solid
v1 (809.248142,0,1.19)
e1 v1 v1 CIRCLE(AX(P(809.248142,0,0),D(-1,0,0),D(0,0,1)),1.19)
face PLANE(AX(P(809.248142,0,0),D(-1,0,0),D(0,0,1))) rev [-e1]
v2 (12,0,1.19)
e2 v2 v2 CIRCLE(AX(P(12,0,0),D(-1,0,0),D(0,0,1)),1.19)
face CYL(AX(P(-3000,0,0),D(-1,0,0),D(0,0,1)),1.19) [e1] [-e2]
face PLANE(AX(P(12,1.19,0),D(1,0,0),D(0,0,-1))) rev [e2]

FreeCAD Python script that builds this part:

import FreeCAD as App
import Part
import Sketcher

V = App.Vector

doc = App.newDocument("Part")
params = doc.addObject("Spreadsheet::Sheet", "Params")
for row, (alias, value) in enumerate([
    ("sketch1_height", "1.19 mm"),
    ("revolution_angle", "360 deg"),
], start=1):
    params.set(f"A{row}", alias)
    params.set(f"B{row}", "=" + value)
    params.setAlias(f"B{row}", alias)

body = doc.addObject("PartDesign::Body", "Body")

# Sketch on XY plane
sketch1 = body.newObject("Sketcher::SketchObject", "Sketch")
sketch1.AttachmentSupport = (doc.getObject("XY_Plane"), [""])
sketch1.MapMode = "FlatFace"
sketch1.addGeometry([
    Part.LineSegment(V(12, 1.2, 0), V(12, 0, 0)),
    Part.LineSegment(V(12, 0, 0), V(809.2, 0, 0)),
    Part.LineSegment(V(809.2, 0, 0), V(809.2, 1.2, 0)),
    Part.LineSegment(V(809.2, 1.2, 0), V(12, 1.2, 0)),
], False)
sketch1.addConstraint([
    Sketcher.Constraint("Coincident", 0, 2, 1, 1),
    Sketcher.Constraint("Coincident", 1, 2, 2, 1),
    Sketcher.Constraint("Coincident", 2, 2, 3, 1),
    Sketcher.Constraint("Coincident", 3, 2, 0, 1),
    Sketcher.Constraint("Vertical", 0),
    Sketcher.Constraint("Horizontal", 1),
    Sketcher.Constraint("Vertical", 2),
    Sketcher.Constraint("Horizontal", 3),
    Sketcher.Constraint("PointOnObject", 0, 2, -1),
    Sketcher.Constraint("DistanceX", -1, 1, 0, 2, 12.0),
    Sketcher.Constraint("DistanceY", 0, 2, 0, 1, 1.19),
    Sketcher.Constraint("DistanceX", 1, 1, 1, 2, 797.248142),
])
sketch1.setExpression("Constraints[10]", "Params.sketch1_height")
revolution = body.newObject("PartDesign::Revolution", "Revolution")
revolution.Profile = sketch1
revolution.ReferenceAxis = (sketch1, ["H_Axis"])
revolution.setExpression("Angle", "Params.revolution_angle")

doc.recompute()
